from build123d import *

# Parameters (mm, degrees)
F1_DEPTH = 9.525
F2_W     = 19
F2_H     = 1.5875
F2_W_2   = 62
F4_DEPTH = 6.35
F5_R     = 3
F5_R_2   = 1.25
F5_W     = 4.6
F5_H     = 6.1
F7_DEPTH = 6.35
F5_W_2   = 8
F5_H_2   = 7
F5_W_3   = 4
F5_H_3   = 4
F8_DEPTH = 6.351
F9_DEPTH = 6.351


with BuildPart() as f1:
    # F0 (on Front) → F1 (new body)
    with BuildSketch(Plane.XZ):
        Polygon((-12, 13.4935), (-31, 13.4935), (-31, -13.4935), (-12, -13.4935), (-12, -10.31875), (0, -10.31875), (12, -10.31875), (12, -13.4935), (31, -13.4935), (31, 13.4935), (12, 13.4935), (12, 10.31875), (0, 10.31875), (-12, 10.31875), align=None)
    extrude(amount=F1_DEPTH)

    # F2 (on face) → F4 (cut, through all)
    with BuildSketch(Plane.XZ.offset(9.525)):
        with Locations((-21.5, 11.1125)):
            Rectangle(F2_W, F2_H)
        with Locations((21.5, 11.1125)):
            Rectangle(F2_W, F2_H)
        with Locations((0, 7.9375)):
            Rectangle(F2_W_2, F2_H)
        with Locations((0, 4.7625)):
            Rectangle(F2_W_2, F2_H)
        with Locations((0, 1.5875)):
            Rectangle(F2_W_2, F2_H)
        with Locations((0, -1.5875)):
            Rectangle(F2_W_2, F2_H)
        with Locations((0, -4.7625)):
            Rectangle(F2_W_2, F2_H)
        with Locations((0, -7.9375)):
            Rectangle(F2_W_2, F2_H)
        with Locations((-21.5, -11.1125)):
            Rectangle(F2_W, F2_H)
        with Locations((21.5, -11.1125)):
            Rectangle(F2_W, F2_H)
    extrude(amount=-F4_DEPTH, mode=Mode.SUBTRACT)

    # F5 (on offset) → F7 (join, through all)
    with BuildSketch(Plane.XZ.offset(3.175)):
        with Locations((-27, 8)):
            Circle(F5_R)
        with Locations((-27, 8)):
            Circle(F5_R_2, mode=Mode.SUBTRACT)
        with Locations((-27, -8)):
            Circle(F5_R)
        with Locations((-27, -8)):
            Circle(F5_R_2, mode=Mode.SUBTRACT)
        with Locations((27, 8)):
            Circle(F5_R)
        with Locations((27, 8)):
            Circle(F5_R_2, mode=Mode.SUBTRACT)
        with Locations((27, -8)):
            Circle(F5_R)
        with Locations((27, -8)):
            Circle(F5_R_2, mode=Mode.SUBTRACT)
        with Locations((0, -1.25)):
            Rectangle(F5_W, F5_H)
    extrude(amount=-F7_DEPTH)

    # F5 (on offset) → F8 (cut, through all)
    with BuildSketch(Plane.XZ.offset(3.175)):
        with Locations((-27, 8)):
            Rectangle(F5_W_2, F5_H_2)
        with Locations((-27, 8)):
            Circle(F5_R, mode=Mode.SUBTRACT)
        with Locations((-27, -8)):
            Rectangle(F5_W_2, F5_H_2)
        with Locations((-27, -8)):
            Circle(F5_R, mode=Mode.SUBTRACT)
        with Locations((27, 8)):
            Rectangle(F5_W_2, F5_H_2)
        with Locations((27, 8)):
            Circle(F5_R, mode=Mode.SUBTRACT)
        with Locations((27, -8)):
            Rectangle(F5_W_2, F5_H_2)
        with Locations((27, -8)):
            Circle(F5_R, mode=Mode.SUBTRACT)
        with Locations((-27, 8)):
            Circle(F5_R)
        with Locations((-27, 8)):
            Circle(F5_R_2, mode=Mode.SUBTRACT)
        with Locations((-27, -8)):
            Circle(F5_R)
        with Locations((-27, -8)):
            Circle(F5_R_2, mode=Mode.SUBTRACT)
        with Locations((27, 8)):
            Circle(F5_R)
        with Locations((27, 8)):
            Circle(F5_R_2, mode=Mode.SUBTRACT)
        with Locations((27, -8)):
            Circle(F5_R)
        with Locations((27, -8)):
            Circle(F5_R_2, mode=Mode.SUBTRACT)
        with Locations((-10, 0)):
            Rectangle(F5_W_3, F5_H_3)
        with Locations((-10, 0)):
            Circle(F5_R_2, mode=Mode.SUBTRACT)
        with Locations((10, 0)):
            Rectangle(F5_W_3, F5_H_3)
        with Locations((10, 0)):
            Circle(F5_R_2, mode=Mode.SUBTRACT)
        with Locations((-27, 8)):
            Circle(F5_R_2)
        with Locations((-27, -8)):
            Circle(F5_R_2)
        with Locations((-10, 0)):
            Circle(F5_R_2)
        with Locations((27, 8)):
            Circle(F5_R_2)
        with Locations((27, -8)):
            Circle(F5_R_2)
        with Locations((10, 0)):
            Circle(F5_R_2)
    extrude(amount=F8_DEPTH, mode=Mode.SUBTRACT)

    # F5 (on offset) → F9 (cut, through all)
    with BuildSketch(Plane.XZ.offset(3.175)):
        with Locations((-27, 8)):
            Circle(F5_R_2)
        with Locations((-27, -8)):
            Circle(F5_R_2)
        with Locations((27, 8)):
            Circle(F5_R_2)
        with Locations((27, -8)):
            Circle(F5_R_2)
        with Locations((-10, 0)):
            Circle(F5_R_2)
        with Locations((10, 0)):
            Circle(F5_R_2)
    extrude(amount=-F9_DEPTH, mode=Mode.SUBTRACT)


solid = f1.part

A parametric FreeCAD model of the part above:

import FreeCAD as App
import Part
import Sketcher
from FreeCAD import Vector


def add_polygon(sketch, points):
    """Adds a closed chain of lines whose ends are joined by coincident constraints."""
    first, n = sketch.GeometryCount, len(points)
    for a, b in zip(points, points[1:] + points[:1]):
        sketch.addGeometry(Part.LineSegment(App.Vector(*a, 0), App.Vector(*b, 0)), False)
    for i in range(n):
        sketch.addConstraint(Sketcher.Constraint("Coincident", first + i, 2, first + (i + 1) % n, 1))

doc = App.newDocument("Part")
body = doc.addObject("PartDesign::Body", "Body")

# Sketch on XZ plane
sketch1 = body.newObject("Sketcher::SketchObject", "Sketch")
sketch1.AttachmentSupport = (doc.getObject("XZ_Plane"), [""])
sketch1.MapMode = "FlatFace"
add_polygon(sketch1, [(-12, 13.5), (-31, 13.5), (-31, -13.5), (-12, -13.5), (-12, -10.3), (12, -10.3), (12, -13.5), (31, -13.5), (31, 13.5), (12, 13.5), (12, 10.3), (-12, 10.3)])  # lines 0-11
sketch1.addConstraint([
    Sketcher.Constraint("Horizontal", 0),
    Sketcher.Constraint("Vertical", 1),
    Sketcher.Constraint("Horizontal", 2),
    Sketcher.Constraint("Vertical", 3),
    Sketcher.Constraint("Horizontal", 4),
    Sketcher.Constraint("Vertical", 5),
    Sketcher.Constraint("Horizontal", 6),
    Sketcher.Constraint("Vertical", 7),
    Sketcher.Constraint("Horizontal", 8),
    Sketcher.Constraint("Vertical", 9),
    Sketcher.Constraint("Horizontal", 10),
    Sketcher.Constraint("Vertical", 11),
    Sketcher.Constraint("Symmetric", 0, 2, 6, 2, -1, 1),
    Sketcher.Constraint("Symmetric", 2, 2, 8, 2, -1, 1),
    Sketcher.Constraint("Symmetric", 4, 2, 10, 2, -1, 1),
    Sketcher.Constraint("Symmetric", 2, 2, 5, 2, -2),
    Sketcher.Constraint("DistanceX", 0, 2, 0, 1, 19.0),
    Sketcher.Constraint("DistanceX", 4, 1, 4, 2, 24.0),
    Sketcher.Constraint("DistanceY", 1, 2, 1, 1, 26.987),
    Sketcher.Constraint("DistanceY", 3, 1, 3, 2, 3.17475),
])
pad1 = body.newObject("PartDesign::Pad", "Pad")
pad1.Profile = sketch1
pad1.Length = 9.525

# Sketch on XZ plane
sketch2 = body.newObject("Sketcher::SketchObject", "Sketch001")
sketch2.AttachmentSupport = (doc.getObject("XZ_Plane"), [""])
sketch2.MapMode = "FlatFace"
sketch2.AttachmentOffset = App.Placement(Vector(0, 0, 9.525), App.Rotation())
add_polygon(sketch2, [(-31, 11.9), (-31, 10.3), (-12, 10.3), (-12, 11.9)])  # lines 0-3
add_polygon(sketch2, [(12, 11.9), (12, 10.3), (31, 10.3), (31, 11.9)])  # lines 4-7
add_polygon(sketch2, [(-31, 8.7), (-31, 7.1), (31, 7.1), (31, 8.7)])  # lines 8-11
add_polygon(sketch2, [(-31, 5.6), (-31, 4), (31, 4), (31, 5.6)])  # lines 12-15
add_polygon(sketch2, [(-31, 2.4), (-31, 0.8), (31, 0.8), (31, 2.4)])  # lines 16-19
add_polygon(sketch2, [(-31, -0.8), (-31, -2.4), (31, -2.4), (31, -0.8)])  # lines 20-23
add_polygon(sketch2, [(-31, -4), (-31, -5.6), (31, -5.6), (31, -4)])  # lines 24-27
add_polygon(sketch2, [(-31, -7.1), (-31, -8.7), (31, -8.7), (31, -7.1)])  # lines 28-31
add_polygon(sketch2, [(-31, -10.3), (-31, -11.9), (-12, -11.9), (-12, -10.3)])  # lines 32-35
add_polygon(sketch2, [(12, -10.3), (12, -11.9), (31, -11.9), (31, -10.3)])  # lines 36-39
sketch2.addConstraint([
    Sketcher.Constraint("Vertical", 0),
    Sketcher.Constraint("Horizontal", 1),
    Sketcher.Constraint("Vertical", 2),
    Sketcher.Constraint("Horizontal", 3),
    Sketcher.Constraint("Vertical", 4),
    Sketcher.Constraint("Horizontal", 5),
    Sketcher.Constraint("Vertical", 6),
    Sketcher.Constraint("Horizontal", 7),
    Sketcher.Constraint("Vertical", 8),
    Sketcher.Constraint("Horizontal", 9),
    Sketcher.Constraint("Vertical", 10),
    Sketcher.Constraint("Horizontal", 11),
    Sketcher.Constraint("Vertical", 12),
    Sketcher.Constraint("Horizontal", 13),
    Sketcher.Constraint("Vertical", 14),
    Sketcher.Constraint("Horizontal", 15),
    Sketcher.Constraint("Vertical", 16),
    Sketcher.Constraint("Horizontal", 17),
    Sketcher.Constraint("Vertical", 18),
    Sketcher.Constraint("Horizontal", 19),
    Sketcher.Constraint("Vertical", 20),
    Sketcher.Constraint("Horizontal", 21),
    Sketcher.Constraint("Vertical", 22),
    Sketcher.Constraint("Horizontal", 23),
    Sketcher.Constraint("Vertical", 24),
    Sketcher.Constraint("Horizontal", 25),
    Sketcher.Constraint("Vertical", 26),
    Sketcher.Constraint("Horizontal", 27),
    Sketcher.Constraint("Vertical", 28),
    Sketcher.Constraint("Horizontal", 29),
    Sketcher.Constraint("Vertical", 30),
    Sketcher.Constraint("Horizontal", 31),
    Sketcher.Constraint("Vertical", 32),
    Sketcher.Constraint("Horizontal", 33),
    Sketcher.Constraint("Vertical", 34),
    Sketcher.Constraint("Horizontal", 35),
    Sketcher.Constraint("Vertical", 36),
    Sketcher.Constraint("Horizontal", 37),
    Sketcher.Constraint("Vertical", 38),
    Sketcher.Constraint("Horizontal", 39),
    Sketcher.Constraint("Symmetric", 18, 2, 20, 2, -1, 1),
    Sketcher.Constraint("Symmetric", 16, 2, 22, 2, -1, 1),
    Sketcher.Constraint("Symmetric", 14, 2, 24, 2, -1, 1),
    Sketcher.Constraint("Symmetric", 12, 2, 26, 2, -1, 1),
    Sketcher.Constraint("Symmetric", 10, 2, 28, 2, -1, 1),
    Sketcher.Constraint("Symmetric", 8, 2, 30, 2, -1, 1),
    Sketcher.Constraint("Symmetric", 6, 2, 32, 2, -1, 1),
    Sketcher.Constraint("Symmetric", 4, 2, 34, 2, -1, 1),
    Sketcher.Constraint("Symmetric", 2, 2, 36, 2, -1, 1),
    Sketcher.Constraint("Symmetric", 0, 2, 38, 2, -1, 1),
    Sketcher.Constraint("Symmetric", 1, 2, 4, 2, -2),
    Sketcher.Constraint("Symmetric", 3, 2, 6, 2, -2),
    Sketcher.Constraint("Vertical", 3, 2, 8, 2),
    Sketcher.Constraint("Vertical", 6, 2, 9, 2),
    Sketcher.Constraint("Vertical", 11, 2, 12, 2),
    Sketcher.Constraint("Vertical", 10, 2, 13, 2),
    Sketcher.Constraint("Vertical", 15, 2, 16, 2),
    Sketcher.Constraint("Vertical", 14, 2, 17, 2),
    Sketcher.Constraint("Equal", 6, 8),
    Sketcher.Constraint("Equal", 10, 12),
    Sketcher.Constraint("Equal", 14, 16),
    Sketcher.Constraint("DistanceX", 1, 1, 1, 2, 19.0),
    Sketcher.Constraint("DistanceX", 9, 1, 9, 2, 62.0),
    Sketcher.Constraint("DistanceY", 12, 2, 0, 2, 6.35),
    Sketcher.Constraint("DistanceY", 16, 2, 8, 2, 6.35),
    Sketcher.Constraint("DistanceY", 20, 2, 12, 2, 6.35),
    Sketcher.Constraint("DistanceY", 0, 2, 0, 1, 1.5875),
    Sketcher.Constraint("DistanceY", 8, 2, 0, 2, 3.175),
])
pocket1 = body.newObject("PartDesign::Pocket", "Pocket")
pocket1.Profile = sketch2
pocket1.Length = 6.35

# Sketch on XZ plane
sketch3 = body.newObject("Sketcher::SketchObject", "Sketch002")
sketch3.AttachmentSupport = (doc.getObject("XZ_Plane"), [""])
sketch3.MapMode = "FlatFace"
sketch3.AttachmentOffset = App.Placement(Vector(0, 0, 3.175), App.Rotation())
sketch3.addGeometry(Part.Circle(Vector(-27, 8, 0), Vector(0, 0, 1), 3), False)  # 0
sketch3.addGeometry(Part.Circle(Vector(-27, 8, 0), Vector(0, 0, 1), 1.2), False)  # 1
sketch3.addGeometry(Part.Circle(Vector(-27, -8, 0), Vector(0, 0, 1), 3), False)  # 2
sketch3.addGeometry(Part.Circle(Vector(-27, -8, 0), Vector(0, 0, 1), 1.2), False)  # 3
sketch3.addGeometry(Part.Circle(Vector(27, 8, 0), Vector(0, 0, 1), 3), False)  # 4
sketch3.addGeometry(Part.Circle(Vector(27, 8, 0), Vector(0, 0, 1), 1.2), False)  # 5
sketch3.addGeometry(Part.Circle(Vector(27, -8, 0), Vector(0, 0, 1), 3), False)  # 6
sketch3.addGeometry(Part.Circle(Vector(27, -8, 0), Vector(0, 0, 1), 1.2), False)  # 7
add_polygon(sketch3, [(-2.3, 1.8), (-2.3, -4.3), (2.3, -4.3), (2.3, 1.8)])  # lines 8-11
sketch3.addConstraint([
    Sketcher.Constraint("Vertical", 8),
    Sketcher.Constraint("Horizontal", 9),
    Sketcher.Constraint("Vertical", 10),
    Sketcher.Constraint("Horizontal", 11),
    Sketcher.Constraint("Coincident", 1, 3, 0, 3),
    Sketcher.Constraint("Coincident", 3, 3, 2, 3),
    Sketcher.Constraint("Coincident", 5, 3, 4, 3),
    Sketcher.Constraint("Coincident", 7, 3, 6, 3),
    Sketcher.Constraint("Equal", 0, 2),
    Sketcher.Constraint("Equal", 1, 3),
    Sketcher.Constraint("Equal", 2, 4),
    Sketcher.Constraint("Equal", 3, 5),
    Sketcher.Constraint("Equal", 4, 6),
    Sketcher.Constraint("Equal", 5, 7),
    Sketcher.Constraint("Symmetric", 2, 3, 4, 3, -1, 1),
    Sketcher.Constraint("Symmetric", 0, 3, 6, 3, -1, 1),
    Sketcher.Constraint("Symmetric", 0, 3, 4, 3, -2),
    Sketcher.Constraint("Diameter", 0, 6.0),
    Sketcher.Constraint("Diameter", 1, 2.5),
    Sketcher.Constraint("DistanceX", 9, 1, 9, 2, 4.6),
    Sketcher.Constraint("DistanceY", 8, 2, 8, 1, 6.1),
    Sketcher.Constraint("DistanceX", 0, 3, -1, 1, 27.0),
    Sketcher.Constraint("DistanceY", -1, 1, 0, 3, 8.0),
    Sketcher.Constraint("DistanceX", 8, 2, -1, 1, 2.3),
    Sketcher.Constraint("DistanceY", 8, 2, -1, 1, 4.3),
])
pad2 = body.newObject("PartDesign::Pad", "Pad001")
pad2.Profile = sketch3
pad2.Length = 6.35
pad2.Reversed = True

# Sketch on XZ plane
sketch4 = body.newObject("Sketcher::SketchObject", "Sketch003")
sketch4.AttachmentSupport = (doc.getObject("XZ_Plane"), [""])
sketch4.MapMode = "FlatFace"
sketch4.AttachmentOffset = App.Placement(Vector(0, 0, 3.175), App.Rotation())
add_polygon(sketch4, [(-31, 11.5), (-31, 4.5), (-23, 4.5), (-23, 11.5)])  # lines 0-3
add_polygon(sketch4, [(-31, -4.5), (-31, -11.5), (-23, -11.5), (-23, -4.5)])  # lines 4-7
add_polygon(sketch4, [(23, 11.5), (23, 4.5), (31, 4.5), (31, 11.5)])  # lines 8-11
add_polygon(sketch4, [(23, -4.5), (23, -11.5), (31, -11.5), (31, -4.5)])  # lines 12-15
add_polygon(sketch4, [(-12, 2), (-12, -2), (-8, -2), (-8, 2)])  # lines 16-19
add_polygon(sketch4, [(8, 2), (8, -2), (12, -2), (12, 2)])  # lines 20-23
sketch4.addConstraint([
    Sketcher.Constraint("Vertical", 0),
    Sketcher.Constraint("Horizontal", 1),
    Sketcher.Constraint("Vertical", 2),
    Sketcher.Constraint("Horizontal", 3),
    Sketcher.Constraint("Vertical", 4),
    Sketcher.Constraint("Horizontal", 5),
    Sketcher.Constraint("Vertical", 6),
    Sketcher.Constraint("Horizontal", 7),
    Sketcher.Constraint("Vertical", 8),
    Sketcher.Constraint("Horizontal", 9),
    Sketcher.Constraint("Vertical", 10),
    Sketcher.Constraint("Horizontal", 11),
    Sketcher.Constraint("Vertical", 12),
    Sketcher.Constraint("Horizontal", 13),
    Sketcher.Constraint("Vertical", 14),
    Sketcher.Constraint("Horizontal", 15),
    Sketcher.Constraint("Vertical", 16),
    Sketcher.Constraint("Horizontal", 17),
    Sketcher.Constraint("Vertical", 18),
    Sketcher.Constraint("Horizontal", 19),
    Sketcher.Constraint("Vertical", 20),
    Sketcher.Constraint("Horizontal", 21),
    Sketcher.Constraint("Vertical", 22),
    Sketcher.Constraint("Horizontal", 23),
    Sketcher.Constraint("Symmetric", 6, 2, 8, 2, -1, 1),
    Sketcher.Constraint("Symmetric", 4, 2, 10, 2, -1, 1),
    Sketcher.Constraint("Symmetric", 2, 2, 12, 2, -1, 1),
    Sketcher.Constraint("Symmetric", 0, 2, 14, 2, -1, 1),
    Sketcher.Constraint("Symmetric", 18, 2, 20, 2, -1, 1),
    Sketcher.Constraint("Symmetric", 16, 2, 22, 2, -1, 1),
    Sketcher.Constraint("Symmetric", 1, 2, 8, 2, -2),
    Sketcher.Constraint("Symmetric", 3, 2, 10, 2, -2),
    Sketcher.Constraint("Horizontal", 17, 2, 20, 2),
    Sketcher.Constraint("Equal", 23, 16),
    Sketcher.Constraint("DistanceX", 1, 1, 1, 2, 8.0),
    Sketcher.Constraint("DistanceX", 17, 1, 17, 2, 4.0),
    Sketcher.Constraint("DistanceY", 0, 2, 0, 1, 7.0),
    Sketcher.Constraint("DistanceX", 0, 2, -1, 1, 31.0),
    Sketcher.Constraint("DistanceX", 16, 2, -1, 1, 12.0),
    Sketcher.Constraint("DistanceY", 4, 2, 0, 2, 16.0),
])
pocket2 = body.newObject("PartDesign::Pocket", "Pocket001")
pocket2.Profile = sketch4
pocket2.Type = "ThroughAll"
pocket2.Reversed = True

# Sketch on XZ plane
sketch5 = body.newObject("Sketcher::SketchObject", "Sketch004")
sketch5.AttachmentSupport = (doc.getObject("XZ_Plane"), [""])
sketch5.MapMode = "FlatFace"
sketch5.AttachmentOffset = App.Placement(Vector(0, 0, 3.175), App.Rotation())
sketch5.addGeometry([
    Part.Circle(Vector(-27, 8, 0), Vector(0, 0, 1), 1.2),  # 0
    Part.Circle(Vector(-27, -8, 0), Vector(0, 0, 1), 1.2),  # 1
    Part.Circle(Vector(27, 8, 0), Vector(0, 0, 1), 1.2),  # 2
    Part.Circle(Vector(27, -8, 0), Vector(0, 0, 1), 1.2),  # 3
    Part.Circle(Vector(-10, 0, 0), Vector(0, 0, 1), 1.2),  # 4
    Part.Circle(Vector(10, 0, 0), Vector(0, 0, 1), 1.2),  # 5
], False)
sketch5.addConstraint([
    Sketcher.Constraint("Equal", 0, 1),
    Sketcher.Constraint("Equal", 1, 2),
    Sketcher.Constraint("Equal", 2, 3),
    Sketcher.Constraint("Equal", 3, 4),
    Sketcher.Constraint("Equal", 4, 5),
    Sketcher.Constraint("Symmetric", 1, 3, 2, 3, -1, 1),
    Sketcher.Constraint("Symmetric", 0, 3, 3, 3, -1, 1),
    Sketcher.Constraint("Symmetric", 4, 3, 5, 3, -1, 1),
    Sketcher.Constraint("Symmetric", 0, 3, 2, 3, -2),
    Sketcher.Constraint("PointOnObject", 4, 3, -1),
    Sketcher.Constraint("Diameter", 0, 2.5),
    Sketcher.Constraint("DistanceX", 0, 3, -1, 1, 27.0),
    Sketcher.Constraint("DistanceY", -1, 1, 0, 3, 8.0),
    Sketcher.Constraint("DistanceX", 4, 3, -1, 1, 10.0),
])
pocket3 = body.newObject("PartDesign::Pocket", "Pocket002")
pocket3.Profile = sketch5
pocket3.Type = "ThroughAll"

doc.recompute()
